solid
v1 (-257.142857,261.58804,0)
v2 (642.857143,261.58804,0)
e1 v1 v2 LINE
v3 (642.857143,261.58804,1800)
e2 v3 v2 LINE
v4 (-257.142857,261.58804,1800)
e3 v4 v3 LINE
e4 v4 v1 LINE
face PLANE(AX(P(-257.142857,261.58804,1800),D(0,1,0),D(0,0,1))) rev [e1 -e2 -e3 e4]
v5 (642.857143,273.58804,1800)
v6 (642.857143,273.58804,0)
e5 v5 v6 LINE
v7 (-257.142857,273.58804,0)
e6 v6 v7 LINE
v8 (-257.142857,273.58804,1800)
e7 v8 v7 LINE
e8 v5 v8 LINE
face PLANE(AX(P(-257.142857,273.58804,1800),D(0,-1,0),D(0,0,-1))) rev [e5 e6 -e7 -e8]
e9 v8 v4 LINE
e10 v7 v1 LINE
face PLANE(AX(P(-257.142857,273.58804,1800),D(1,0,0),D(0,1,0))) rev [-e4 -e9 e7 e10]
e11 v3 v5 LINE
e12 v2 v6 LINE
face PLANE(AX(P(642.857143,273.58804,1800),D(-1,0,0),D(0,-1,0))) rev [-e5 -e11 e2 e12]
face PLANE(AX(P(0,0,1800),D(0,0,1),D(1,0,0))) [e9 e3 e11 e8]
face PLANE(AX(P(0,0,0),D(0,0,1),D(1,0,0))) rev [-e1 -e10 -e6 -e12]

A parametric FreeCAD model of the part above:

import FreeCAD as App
import Part
import Sketcher
from FreeCAD import Vector

doc = App.newDocument("Part")
body = doc.addObject("PartDesign::Body", "Body")

# Sketch on XY plane
sketch1 = body.newObject("Sketcher::SketchObject", "Sketch")
sketch1.AttachmentSupport = (doc.getObject("XY_Plane"), [""])
sketch1.MapMode = "FlatFace"
sketch1.addGeometry([
    Part.LineSegment(Vector(-257, 274, 0), Vector(-257, 262, 0)),
    Part.LineSegment(Vector(-257, 262, 0), Vector(643, 262, 0)),
    Part.LineSegment(Vector(643, 262, 0), Vector(643, 274, 0)),
    Part.LineSegment(Vector(643, 274, 0), Vector(-257, 274, 0)),
], False)
sketch1.addConstraint([
    Sketcher.Constraint("Coincident", 0, 2, 1, 1),
    Sketcher.Constraint("Coincident", 1, 2, 2, 1),
    Sketcher.Constraint("Coincident", 2, 2, 3, 1),
    Sketcher.Constraint("Coincident", 3, 2, 0, 1),
    Sketcher.Constraint("Vertical", 0),
    Sketcher.Constraint("Horizontal", 1),
    Sketcher.Constraint("Vertical", 2),
    Sketcher.Constraint("Horizontal", 3),
    Sketcher.Constraint("DistanceX", 1, 1, 1, 2, 900.0),
    Sketcher.Constraint("DistanceY", 0, 2, 0, 1, 12.0),
    Sketcher.Constraint("DistanceY", -1, 1, 0, 2, 261.58804),
    Sketcher.Constraint("DistanceX", 0, 2, -1, 1, 257.142857),
])
pad1 = body.newObject("PartDesign::Pad", "Pad")
pad1.Profile = sketch1
pad1.Length = 1800

doc.recompute()
